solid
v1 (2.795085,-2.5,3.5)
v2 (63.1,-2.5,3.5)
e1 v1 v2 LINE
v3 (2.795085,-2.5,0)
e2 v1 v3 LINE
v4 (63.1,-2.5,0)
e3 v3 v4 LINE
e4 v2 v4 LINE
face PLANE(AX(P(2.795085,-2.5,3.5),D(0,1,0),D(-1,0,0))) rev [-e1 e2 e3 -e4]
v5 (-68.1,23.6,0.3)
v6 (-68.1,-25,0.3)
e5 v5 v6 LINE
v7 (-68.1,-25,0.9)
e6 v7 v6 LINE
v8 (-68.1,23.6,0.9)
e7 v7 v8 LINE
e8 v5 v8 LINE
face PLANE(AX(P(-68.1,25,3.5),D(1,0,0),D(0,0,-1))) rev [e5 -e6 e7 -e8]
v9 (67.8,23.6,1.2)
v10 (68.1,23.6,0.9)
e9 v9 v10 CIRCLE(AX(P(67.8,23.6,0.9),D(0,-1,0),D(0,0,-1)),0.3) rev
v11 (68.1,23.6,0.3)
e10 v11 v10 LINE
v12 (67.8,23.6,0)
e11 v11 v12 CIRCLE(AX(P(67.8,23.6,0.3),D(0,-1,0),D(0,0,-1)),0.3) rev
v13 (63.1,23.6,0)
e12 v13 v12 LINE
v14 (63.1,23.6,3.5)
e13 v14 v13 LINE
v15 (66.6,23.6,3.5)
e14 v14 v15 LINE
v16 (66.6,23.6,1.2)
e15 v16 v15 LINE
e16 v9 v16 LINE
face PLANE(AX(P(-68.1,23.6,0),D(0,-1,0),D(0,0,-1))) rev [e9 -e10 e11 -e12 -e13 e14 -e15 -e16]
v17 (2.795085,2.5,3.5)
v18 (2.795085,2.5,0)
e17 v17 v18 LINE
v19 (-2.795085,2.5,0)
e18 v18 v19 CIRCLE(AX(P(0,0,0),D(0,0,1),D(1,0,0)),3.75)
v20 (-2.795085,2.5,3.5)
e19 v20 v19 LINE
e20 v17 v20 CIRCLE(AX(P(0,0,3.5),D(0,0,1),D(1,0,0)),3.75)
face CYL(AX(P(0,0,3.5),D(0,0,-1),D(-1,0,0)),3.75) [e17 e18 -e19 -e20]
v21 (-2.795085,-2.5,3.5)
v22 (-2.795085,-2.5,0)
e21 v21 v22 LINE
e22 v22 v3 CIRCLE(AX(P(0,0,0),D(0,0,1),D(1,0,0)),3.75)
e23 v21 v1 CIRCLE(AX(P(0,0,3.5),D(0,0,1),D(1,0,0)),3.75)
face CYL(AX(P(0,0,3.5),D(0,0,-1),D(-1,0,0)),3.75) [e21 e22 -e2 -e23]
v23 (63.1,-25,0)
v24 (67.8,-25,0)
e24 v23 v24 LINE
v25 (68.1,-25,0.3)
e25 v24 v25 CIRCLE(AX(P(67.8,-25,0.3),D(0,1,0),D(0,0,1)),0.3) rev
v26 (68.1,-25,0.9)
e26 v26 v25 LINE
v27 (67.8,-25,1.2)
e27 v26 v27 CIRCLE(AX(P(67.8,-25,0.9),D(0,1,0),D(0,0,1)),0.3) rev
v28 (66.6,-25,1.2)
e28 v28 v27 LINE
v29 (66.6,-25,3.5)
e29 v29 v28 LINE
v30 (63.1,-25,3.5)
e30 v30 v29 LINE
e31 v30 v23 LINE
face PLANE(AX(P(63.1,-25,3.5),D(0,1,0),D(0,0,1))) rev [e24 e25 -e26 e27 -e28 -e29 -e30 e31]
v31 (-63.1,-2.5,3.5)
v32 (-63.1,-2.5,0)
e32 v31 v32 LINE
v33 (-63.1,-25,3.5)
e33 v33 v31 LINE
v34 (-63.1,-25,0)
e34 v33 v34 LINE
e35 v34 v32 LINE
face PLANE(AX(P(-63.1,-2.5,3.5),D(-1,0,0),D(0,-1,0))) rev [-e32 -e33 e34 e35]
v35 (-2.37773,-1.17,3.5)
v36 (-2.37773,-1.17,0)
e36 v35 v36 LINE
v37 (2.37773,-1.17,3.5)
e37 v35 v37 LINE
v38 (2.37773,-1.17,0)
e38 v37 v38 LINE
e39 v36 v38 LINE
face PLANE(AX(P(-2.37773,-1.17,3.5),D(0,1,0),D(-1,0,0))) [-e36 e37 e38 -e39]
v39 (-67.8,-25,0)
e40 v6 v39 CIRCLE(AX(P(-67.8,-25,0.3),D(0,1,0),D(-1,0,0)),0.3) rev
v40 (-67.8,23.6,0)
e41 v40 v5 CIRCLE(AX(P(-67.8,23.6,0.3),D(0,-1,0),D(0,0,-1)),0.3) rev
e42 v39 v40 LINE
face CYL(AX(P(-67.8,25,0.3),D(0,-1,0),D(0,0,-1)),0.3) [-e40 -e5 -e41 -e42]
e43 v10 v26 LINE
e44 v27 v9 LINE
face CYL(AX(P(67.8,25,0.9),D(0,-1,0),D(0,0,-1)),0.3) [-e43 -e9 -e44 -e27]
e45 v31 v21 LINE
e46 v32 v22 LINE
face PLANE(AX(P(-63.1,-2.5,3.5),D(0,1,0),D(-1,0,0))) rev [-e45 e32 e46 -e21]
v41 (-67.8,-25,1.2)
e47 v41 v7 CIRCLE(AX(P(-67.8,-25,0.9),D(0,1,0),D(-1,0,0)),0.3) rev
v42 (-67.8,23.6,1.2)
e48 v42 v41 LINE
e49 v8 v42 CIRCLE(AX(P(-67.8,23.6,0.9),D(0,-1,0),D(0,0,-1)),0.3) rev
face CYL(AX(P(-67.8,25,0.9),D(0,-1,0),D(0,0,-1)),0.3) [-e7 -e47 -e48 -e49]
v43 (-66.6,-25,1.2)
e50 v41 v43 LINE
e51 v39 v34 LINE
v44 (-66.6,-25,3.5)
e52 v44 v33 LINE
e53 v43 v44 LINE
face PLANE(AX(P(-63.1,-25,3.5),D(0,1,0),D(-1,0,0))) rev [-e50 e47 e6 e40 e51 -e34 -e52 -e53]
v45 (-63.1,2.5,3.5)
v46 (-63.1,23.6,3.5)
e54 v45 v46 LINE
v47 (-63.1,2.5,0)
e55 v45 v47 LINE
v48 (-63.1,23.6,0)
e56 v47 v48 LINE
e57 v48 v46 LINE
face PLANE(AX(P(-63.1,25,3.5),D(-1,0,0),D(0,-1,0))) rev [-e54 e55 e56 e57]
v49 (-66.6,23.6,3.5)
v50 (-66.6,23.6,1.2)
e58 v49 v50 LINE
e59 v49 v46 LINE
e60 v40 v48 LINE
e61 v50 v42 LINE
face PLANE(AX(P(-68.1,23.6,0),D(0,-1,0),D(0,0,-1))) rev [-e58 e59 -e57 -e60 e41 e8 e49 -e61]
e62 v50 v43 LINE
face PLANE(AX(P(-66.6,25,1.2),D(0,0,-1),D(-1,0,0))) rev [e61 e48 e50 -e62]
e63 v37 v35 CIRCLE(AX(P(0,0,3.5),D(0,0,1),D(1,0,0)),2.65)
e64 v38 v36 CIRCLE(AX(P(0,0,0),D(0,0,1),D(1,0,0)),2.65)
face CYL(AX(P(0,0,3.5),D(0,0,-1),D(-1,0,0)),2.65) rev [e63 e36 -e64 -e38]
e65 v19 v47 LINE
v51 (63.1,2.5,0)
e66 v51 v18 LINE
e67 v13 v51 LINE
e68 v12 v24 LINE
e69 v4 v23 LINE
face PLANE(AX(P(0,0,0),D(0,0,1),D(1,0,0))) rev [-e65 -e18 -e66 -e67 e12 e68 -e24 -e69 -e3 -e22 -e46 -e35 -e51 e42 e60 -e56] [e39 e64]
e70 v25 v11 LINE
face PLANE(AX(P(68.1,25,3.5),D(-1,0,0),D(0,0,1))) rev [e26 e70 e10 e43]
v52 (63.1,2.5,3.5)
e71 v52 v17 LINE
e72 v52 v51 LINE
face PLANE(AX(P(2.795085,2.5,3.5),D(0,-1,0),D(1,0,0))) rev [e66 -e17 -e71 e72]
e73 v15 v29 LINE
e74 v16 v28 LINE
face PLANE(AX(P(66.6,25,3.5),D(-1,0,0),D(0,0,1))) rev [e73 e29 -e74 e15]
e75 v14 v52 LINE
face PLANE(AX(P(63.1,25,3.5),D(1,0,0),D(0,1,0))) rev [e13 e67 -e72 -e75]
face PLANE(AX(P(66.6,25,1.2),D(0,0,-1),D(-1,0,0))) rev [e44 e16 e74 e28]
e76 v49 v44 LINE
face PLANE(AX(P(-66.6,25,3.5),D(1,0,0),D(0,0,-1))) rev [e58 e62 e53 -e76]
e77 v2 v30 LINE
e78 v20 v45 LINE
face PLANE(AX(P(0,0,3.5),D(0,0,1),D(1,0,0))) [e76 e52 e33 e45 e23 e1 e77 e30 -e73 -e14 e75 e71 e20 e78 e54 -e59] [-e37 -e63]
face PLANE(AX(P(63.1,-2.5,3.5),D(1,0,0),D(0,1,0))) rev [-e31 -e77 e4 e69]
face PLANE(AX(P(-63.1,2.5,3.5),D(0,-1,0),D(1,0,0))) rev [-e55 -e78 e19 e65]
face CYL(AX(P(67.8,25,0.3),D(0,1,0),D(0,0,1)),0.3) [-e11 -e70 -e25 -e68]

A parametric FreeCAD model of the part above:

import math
import FreeCAD as App
import Part
import Sketcher
from FreeCAD import Vector
Q = App.Units.Quantity


def edges_at(feature, points):
    """Names of the edges that pass closest to the given points."""
    edges = feature.Shape.Edges
    near = lambda p: min(range(len(edges)), key=lambda i: edges[i].distToShape(Part.Vertex(*p))[0])
    return sorted({f"Edge{near(p) + 1}" for p in points})


def add_polygon(sketch, points):
    """Adds a closed chain of lines whose ends are joined by coincident constraints."""
    first, n = sketch.GeometryCount, len(points)
    for a, b in zip(points, points[1:] + points[:1]):
        sketch.addGeometry(Part.LineSegment(App.Vector(*a, 0), App.Vector(*b, 0)), False)
    for i in range(n):
        sketch.addConstraint(Sketcher.Constraint("Coincident", first + i, 2, first + (i + 1) % n, 1))

doc = App.newDocument("Part")
body = doc.addObject("PartDesign::Body", "Body")

sketch1 = doc.addObject("Sketcher::SketchObject", "Sketch")
body.addObject(sketch1)
sketch1.AttachmentSupport = (doc.XY_Plane, [""])
sketch1.MapMode = "FlatFace"
sketch1.addGeometry(Part.LineSegment(Vector(-2.8, 2.5, 0), Vector(-63.1, 2.5, 0)), False)
sketch1.addGeometry(Part.LineSegment(Vector(-63.1, 2.5, 0), Vector(-63.1, 25, 0)), False)
sketch1.addGeometry(Part.LineSegment(Vector(-63.1, 25, 0), Vector(-68.1, 25, 0)), False)
sketch1.addGeometry(Part.LineSegment(Vector(-68.1, 25, 0), Vector(-68.1, -25, 0)), False)
sketch1.addGeometry(Part.LineSegment(Vector(-68.1, -25, 0), Vector(-63.1, -25, 0)), False)
sketch1.addGeometry(Part.LineSegment(Vector(-63.1, -25, 0), Vector(-63.1, -2.5, 0)), False)
sketch1.addGeometry(Part.LineSegment(Vector(-63.1, -2.5, 0), Vector(-2.8, -2.5, 0)), False)
sketch1.addGeometry(Part.ArcOfCircle(Part.Circle(Vector(0, 0, 0), Vector(0, 0, 1), 3.8), math.radians(-138), math.radians(-42)), False)
sketch1.addGeometry(Part.LineSegment(Vector(2.8, -2.5, 0), Vector(63.1, -2.5, 0)), False)
sketch1.addGeometry(Part.LineSegment(Vector(63.1, -2.5, 0), Vector(63.1, -25, 0)), False)
sketch1.addGeometry(Part.LineSegment(Vector(63.1, -25, 0), Vector(68.1, -25, 0)), False)
sketch1.addGeometry(Part.LineSegment(Vector(68.1, -25, 0), Vector(68.1, 25, 0)), False)
sketch1.addGeometry(Part.LineSegment(Vector(68.1, 25, 0), Vector(63.1, 25, 0)), False)
sketch1.addGeometry(Part.LineSegment(Vector(63.1, 25, 0), Vector(63.1, 2.5, 0)), False)
sketch1.addGeometry(Part.LineSegment(Vector(63.1, 2.5, 0), Vector(2.8, 2.5, 0)), False)
sketch1.addGeometry(Part.ArcOfCircle(Part.Circle(Vector(0, 0, 0), Vector(0, 0, 1), 3.8), math.radians(42), math.radians(138)), False)
sketch1.addGeometry(Part.ArcOfCircle(Part.Circle(Vector(0, 0, 0), Vector(0, 0, 1), 2.6), math.radians(-26), math.radians(206)), False)
sketch1.addGeometry(Part.LineSegment(Vector(2.4, -1.2, 0), Vector(-2.4, -1.2, 0)), False)
sketch1.addConstraint(Sketcher.Constraint("Coincident", 0, 2, 1, 1))
sketch1.addConstraint(Sketcher.Constraint("Coincident", 1, 2, 2, 1))
sketch1.addConstraint(Sketcher.Constraint("Coincident", 2, 2, 3, 1))
sketch1.addConstraint(Sketcher.Constraint("Coincident", 3, 2, 4, 1))
sketch1.addConstraint(Sketcher.Constraint("Coincident", 4, 2, 5, 1))
sketch1.addConstraint(Sketcher.Constraint("Coincident", 5, 2, 6, 1))
sketch1.addConstraint(Sketcher.Constraint("Coincident", 6, 2, 7, 1))
sketch1.addConstraint(Sketcher.Constraint("Coincident", 7, 2, 8, 1))
sketch1.addConstraint(Sketcher.Constraint("Coincident", 8, 2, 9, 1))
sketch1.addConstraint(Sketcher.Constraint("Coincident", 9, 2, 10, 1))
sketch1.addConstraint(Sketcher.Constraint("Coincident", 10, 2, 11, 1))
sketch1.addConstraint(Sketcher.Constraint("Coincident", 11, 2, 12, 1))
sketch1.addConstraint(Sketcher.Constraint("Coincident", 12, 2, 13, 1))
sketch1.addConstraint(Sketcher.Constraint("Coincident", 13, 2, 14, 1))
sketch1.addConstraint(Sketcher.Constraint("Coincident", 14, 2, 15, 1))
sketch1.addConstraint(Sketcher.Constraint("Coincident", 15, 2, 0, 1))
sketch1.addConstraint(Sketcher.Constraint("Coincident", 16, 1, 17, 1))
sketch1.addConstraint(Sketcher.Constraint("Coincident", 17, 2, 16, 2))
sketch1.addConstraint(Sketcher.Constraint("Horizontal", 0))
sketch1.addConstraint(Sketcher.Constraint("Vertical", 1))
sketch1.addConstraint(Sketcher.Constraint("Horizontal", 2))
sketch1.addConstraint(Sketcher.Constraint("Vertical", 3))
sketch1.addConstraint(Sketcher.Constraint("Horizontal", 4))
sketch1.addConstraint(Sketcher.Constraint("Vertical", 5))
sketch1.addConstraint(Sketcher.Constraint("Horizontal", 6))
sketch1.addConstraint(Sketcher.Constraint("Horizontal", 8))
sketch1.addConstraint(Sketcher.Constraint("Vertical", 9))
sketch1.addConstraint(Sketcher.Constraint("Horizontal", 10))
sketch1.addConstraint(Sketcher.Constraint("Vertical", 11))
sketch1.addConstraint(Sketcher.Constraint("Horizontal", 12))
sketch1.addConstraint(Sketcher.Constraint("Vertical", 13))
sketch1.addConstraint(Sketcher.Constraint("Horizontal", 14))
sketch1.addConstraint(Sketcher.Constraint("Horizontal", 17))
sketch1.addConstraint(Sketcher.Constraint("Coincident", 7, 3, -1, 1))
sketch1.addConstraint(Sketcher.Constraint("Coincident", 15, 3, -1, 1))
sketch1.addConstraint(Sketcher.Constraint("Coincident", 16, 3, -1, 1))
sketch1.addConstraint(Sketcher.Constraint("Equal", 7, 15))
sketch1.addConstraint(Sketcher.Constraint("Symmetric", 0, 2, 8, 2, -1, 1))
sketch1.addConstraint(Sketcher.Constraint("Symmetric", 2, 2, 10, 2, -1, 1))
sketch1.addConstraint(Sketcher.Constraint("Symmetric", 4, 2, 12, 2, -1, 1))
sketch1.addConstraint(Sketcher.Constraint("Symmetric", 5, 2, 8, 2, -2))
sketch1.addConstraint(Sketcher.Constraint("Horizontal", 4, 2, 9, 2))
sketch1.addConstraint(Sketcher.Constraint("Horizontal", 0, 2, 13, 2))
sketch1.addConstraint(Sketcher.Constraint("DistanceX", 2, 2, 2, 1, Q("5 mm")))
sketch1.addConstraint(Sketcher.Constraint("DistanceY", 3, 2, 3, 1, Q("50 mm")))
sketch1.addConstraint(Sketcher.Constraint("Radius", 7, Q("3.75 mm")))
sketch1.addConstraint(Sketcher.Constraint("Radius", 16, Q("2.65 mm")))
sketch1.addConstraint(Sketcher.Constraint("DistanceY", 1, 1, 1, 2, Q("22.5 mm")))
sketch1.addConstraint(Sketcher.Constraint("DistanceX", 0, 2, -1, 1, Q("63.1 mm")))
sketch1.addConstraint(Sketcher.Constraint("DistanceY", 16, 1, -1, 1, Q("1.17 mm")))
pad1 = doc.addObject("PartDesign::Pad", "Pad")
body.addObject(pad1)
pad1.Profile = sketch1
pad1.Length = 3.5

sketch2 = doc.addObject("Sketcher::SketchObject", "Sketch001")
body.addObject(sketch2)
sketch2.AttachmentSupport = (doc.XZ_Plane, [""])
sketch2.MapMode = "FlatFace"
sketch2.AttachmentOffset = App.Placement(Vector(0, 0, 25), App.Rotation())
add_polygon(sketch2, [(66.6, 3.5), (66.6, 1.2), (68.1, 1.2), (68.1, 3.5)])
add_polygon(sketch2, [(-68.1, 3.5), (-68.1, 1.2), (-66.6, 1.2), (-66.6, 3.5)])
sketch2.addConstraint(Sketcher.Constraint("Vertical", 0))
sketch2.addConstraint(Sketcher.Constraint("Horizontal", 1))
sketch2.addConstraint(Sketcher.Constraint("Vertical", 2))
sketch2.addConstraint(Sketcher.Constraint("Horizontal", 3))
sketch2.addConstraint(Sketcher.Constraint("Vertical", 4))
sketch2.addConstraint(Sketcher.Constraint("Horizontal", 5))
sketch2.addConstraint(Sketcher.Constraint("Vertical", 6))
sketch2.addConstraint(Sketcher.Constraint("Horizontal", 7))
sketch2.addConstraint(Sketcher.Constraint("Symmetric", 1, 2, 4, 2, -2))
sketch2.addConstraint(Sketcher.Constraint("Symmetric", 3, 2, 6, 2, -2))
sketch2.addConstraint(Sketcher.Constraint("DistanceX", 1, 1, 1, 2, Q("1.5 mm")))
sketch2.addConstraint(Sketcher.Constraint("DistanceY", 0, 2, 0, 1, Q("2.3 mm")))
sketch2.addConstraint(Sketcher.Constraint("DistanceX", -1, 1, 0, 2, Q("66.6 mm")))
sketch2.addConstraint(Sketcher.Constraint("DistanceY", -1, 1, 0, 2, Q("1.2 mm")))
pocket1 = doc.addObject("PartDesign::Pocket", "Pocket")
body.addObject(pocket1)
pocket1.Profile = sketch2
pocket1.Type = "ThroughAll"

sketch3 = doc.addObject("Sketcher::SketchObject", "Sketch002")
body.addObject(sketch3)
sketch3.AttachmentSupport = (doc.XY_Plane, [""])
sketch3.MapMode = "FlatFace"
sketch3.AttachmentOffset = App.Placement(Vector(0, 0, 3.5), App.Rotation())
add_polygon(sketch3, [(-68.1, 25), (-68.1, 23.6), (68.1, 23.6), (68.1, 25)])
sketch3.addConstraint(Sketcher.Constraint("Vertical", 0))
sketch3.addConstraint(Sketcher.Constraint("Horizontal", 1))
sketch3.addConstraint(Sketcher.Constraint("Vertical", 2))
sketch3.addConstraint(Sketcher.Constraint("Horizontal", 3))
sketch3.addConstraint(Sketcher.Constraint("DistanceX", 1, 1, 1, 2, Q("136.2 mm")))
sketch3.addConstraint(Sketcher.Constraint("DistanceY", 0, 2, 0, 1, Q("1.4 mm")))
sketch3.addConstraint(Sketcher.Constraint("DistanceY", -1, 1, 2, 2, Q("25 mm")))
sketch3.addConstraint(Sketcher.Constraint("DistanceX", 0, 2, -1, 1, Q("68.1 mm")))
pocket2 = doc.addObject("PartDesign::Pocket", "Pocket001")
body.addObject(pocket2)
pocket2.Profile = sketch3
pocket2.Type = "ThroughAll"
doc.recompute()

fillet = doc.addObject("PartDesign::Fillet", "Fillet")
body.addObject(fillet)
fillet.Base = (pocket2, edges_at(pocket2, [
    (68.1, -0.7, 0),
    (-68.1, -0.7, 1.2),
    (68.1, -0.7, 1.2),
    (-68.1, -0.7, 0),
]))
fillet.Radius = 0.3

doc.recompute()
